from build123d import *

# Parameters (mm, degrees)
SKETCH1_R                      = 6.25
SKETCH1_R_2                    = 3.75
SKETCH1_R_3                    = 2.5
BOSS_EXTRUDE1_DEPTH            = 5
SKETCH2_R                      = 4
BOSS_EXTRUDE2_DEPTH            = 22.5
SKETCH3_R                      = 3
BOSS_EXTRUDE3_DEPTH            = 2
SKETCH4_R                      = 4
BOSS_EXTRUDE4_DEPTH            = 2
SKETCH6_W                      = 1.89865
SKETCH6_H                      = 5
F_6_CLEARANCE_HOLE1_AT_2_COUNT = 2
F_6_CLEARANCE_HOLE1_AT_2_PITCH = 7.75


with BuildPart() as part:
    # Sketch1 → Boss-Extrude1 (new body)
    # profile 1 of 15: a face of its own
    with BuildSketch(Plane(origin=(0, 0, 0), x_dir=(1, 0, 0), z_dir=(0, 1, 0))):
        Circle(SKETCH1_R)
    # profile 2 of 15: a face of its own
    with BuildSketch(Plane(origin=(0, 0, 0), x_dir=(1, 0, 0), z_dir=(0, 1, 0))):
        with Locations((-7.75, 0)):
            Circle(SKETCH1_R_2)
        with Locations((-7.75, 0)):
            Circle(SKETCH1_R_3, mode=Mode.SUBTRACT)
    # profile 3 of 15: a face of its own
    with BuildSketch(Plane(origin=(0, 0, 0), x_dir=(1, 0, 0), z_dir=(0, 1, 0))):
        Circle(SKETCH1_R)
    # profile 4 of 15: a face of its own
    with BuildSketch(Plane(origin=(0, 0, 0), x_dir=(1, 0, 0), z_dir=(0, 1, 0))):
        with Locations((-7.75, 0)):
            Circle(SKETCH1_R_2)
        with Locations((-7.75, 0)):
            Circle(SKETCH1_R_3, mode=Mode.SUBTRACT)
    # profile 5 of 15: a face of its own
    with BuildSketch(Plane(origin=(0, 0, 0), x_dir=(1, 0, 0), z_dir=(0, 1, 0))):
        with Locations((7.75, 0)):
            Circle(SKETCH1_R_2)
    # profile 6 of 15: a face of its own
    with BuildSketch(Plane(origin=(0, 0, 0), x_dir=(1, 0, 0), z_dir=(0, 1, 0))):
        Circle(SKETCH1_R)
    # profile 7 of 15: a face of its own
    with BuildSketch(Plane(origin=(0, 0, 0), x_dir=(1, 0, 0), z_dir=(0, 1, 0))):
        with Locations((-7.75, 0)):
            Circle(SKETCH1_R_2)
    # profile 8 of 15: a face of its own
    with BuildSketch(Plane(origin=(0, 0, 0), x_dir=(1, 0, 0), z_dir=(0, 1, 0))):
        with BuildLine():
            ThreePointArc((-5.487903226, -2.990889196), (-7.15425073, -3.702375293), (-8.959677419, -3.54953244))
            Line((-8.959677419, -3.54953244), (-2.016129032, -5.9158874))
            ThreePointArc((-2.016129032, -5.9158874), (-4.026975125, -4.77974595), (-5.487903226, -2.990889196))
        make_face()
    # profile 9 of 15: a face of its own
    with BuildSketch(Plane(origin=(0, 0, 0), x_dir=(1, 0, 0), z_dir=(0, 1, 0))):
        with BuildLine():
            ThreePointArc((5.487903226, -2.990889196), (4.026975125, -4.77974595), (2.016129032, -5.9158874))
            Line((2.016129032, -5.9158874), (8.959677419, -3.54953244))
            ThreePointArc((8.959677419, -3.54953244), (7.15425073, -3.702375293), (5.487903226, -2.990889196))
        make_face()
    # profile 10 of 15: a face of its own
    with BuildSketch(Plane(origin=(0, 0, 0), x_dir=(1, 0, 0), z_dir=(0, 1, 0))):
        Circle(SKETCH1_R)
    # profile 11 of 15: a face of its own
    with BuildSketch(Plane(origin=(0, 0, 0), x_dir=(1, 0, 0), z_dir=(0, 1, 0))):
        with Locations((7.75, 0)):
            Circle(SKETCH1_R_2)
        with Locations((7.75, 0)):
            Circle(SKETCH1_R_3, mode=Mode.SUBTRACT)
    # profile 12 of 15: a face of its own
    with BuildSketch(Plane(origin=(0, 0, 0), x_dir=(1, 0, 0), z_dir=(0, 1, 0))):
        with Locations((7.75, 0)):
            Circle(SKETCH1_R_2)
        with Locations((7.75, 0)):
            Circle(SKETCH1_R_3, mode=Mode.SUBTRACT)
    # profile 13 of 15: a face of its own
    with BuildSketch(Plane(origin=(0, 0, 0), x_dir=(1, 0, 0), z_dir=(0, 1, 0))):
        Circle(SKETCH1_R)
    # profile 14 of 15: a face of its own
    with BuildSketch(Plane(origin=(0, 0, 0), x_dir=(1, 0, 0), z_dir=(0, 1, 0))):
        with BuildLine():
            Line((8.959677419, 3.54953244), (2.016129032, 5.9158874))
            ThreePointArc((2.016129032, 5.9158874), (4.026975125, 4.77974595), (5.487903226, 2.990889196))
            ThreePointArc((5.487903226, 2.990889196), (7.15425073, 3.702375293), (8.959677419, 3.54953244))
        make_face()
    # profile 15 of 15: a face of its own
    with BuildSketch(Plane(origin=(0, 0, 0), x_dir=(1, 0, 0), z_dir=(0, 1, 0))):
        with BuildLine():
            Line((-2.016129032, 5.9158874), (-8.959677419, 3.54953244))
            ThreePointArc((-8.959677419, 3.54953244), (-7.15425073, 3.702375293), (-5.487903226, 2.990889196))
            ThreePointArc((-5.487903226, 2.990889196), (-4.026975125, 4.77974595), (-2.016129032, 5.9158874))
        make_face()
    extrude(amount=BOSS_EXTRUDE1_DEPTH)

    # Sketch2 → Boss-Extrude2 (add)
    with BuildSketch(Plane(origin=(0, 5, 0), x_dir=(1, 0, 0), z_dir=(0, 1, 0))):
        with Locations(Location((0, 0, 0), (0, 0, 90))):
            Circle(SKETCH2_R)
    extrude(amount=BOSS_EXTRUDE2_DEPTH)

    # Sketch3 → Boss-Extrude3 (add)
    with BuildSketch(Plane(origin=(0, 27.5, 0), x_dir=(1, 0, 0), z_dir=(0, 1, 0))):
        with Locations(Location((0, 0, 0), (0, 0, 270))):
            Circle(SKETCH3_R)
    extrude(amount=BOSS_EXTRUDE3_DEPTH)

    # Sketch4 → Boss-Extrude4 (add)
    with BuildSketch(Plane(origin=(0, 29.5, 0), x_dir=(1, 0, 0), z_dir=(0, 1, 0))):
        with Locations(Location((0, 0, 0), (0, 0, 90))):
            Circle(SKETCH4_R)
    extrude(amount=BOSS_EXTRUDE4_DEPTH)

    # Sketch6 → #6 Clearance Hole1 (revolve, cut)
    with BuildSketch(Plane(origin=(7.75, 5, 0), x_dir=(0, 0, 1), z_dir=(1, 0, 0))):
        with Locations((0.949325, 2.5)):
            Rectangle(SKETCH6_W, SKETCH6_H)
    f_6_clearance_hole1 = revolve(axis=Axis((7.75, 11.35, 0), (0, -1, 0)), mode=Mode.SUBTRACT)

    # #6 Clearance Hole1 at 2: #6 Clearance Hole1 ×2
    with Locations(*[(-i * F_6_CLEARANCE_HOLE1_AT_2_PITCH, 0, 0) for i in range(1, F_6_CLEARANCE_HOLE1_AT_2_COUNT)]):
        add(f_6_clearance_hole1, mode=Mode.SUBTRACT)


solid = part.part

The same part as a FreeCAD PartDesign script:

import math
import FreeCAD as App
import Part
import Sketcher

V = App.Vector


def add_polygon(sketch, points):
    """Adds a closed chain of lines whose ends are joined by coincident constraints."""
    first, n = sketch.GeometryCount, len(points)
    for a, b in zip(points, points[1:] + points[:1]):
        sketch.addGeometry(Part.LineSegment(App.Vector(*a, 0), App.Vector(*b, 0)), False)
    for i in range(n):
        sketch.addConstraint(Sketcher.Constraint("Coincident", first + i, 2, first + (i + 1) % n, 1))

doc = App.newDocument("Part")
params = doc.addObject("Spreadsheet::Sheet", "Params")
for row, (alias, value) in enumerate([
    ("sketch1_radius", "6.25 mm"),
    ("sketch1_radius2", "3.75 mm"),
    ("pad1_length", "5 mm"),
    ("sketch2_diameter", "8 mm"),
    ("pad2_length", "22.5 mm"),
    ("sketch3_diameter", "6 mm"),
    ("pad3_length", "2 mm"),
    ("sketch4_diameter", "8 mm"),
    ("pad4_length", "2 mm"),
    ("sketch5_width", "5 mm"),
    ("groove_angle", "360 deg"),
    ("linearpattern_pitch", "7.75 mm"),
], start=1):
    params.set(f"A{row}", alias)
    params.set(f"B{row}", "=" + value)
    params.setAlias(f"B{row}", alias)

body = doc.addObject("PartDesign::Body", "Body")

# Sketch on XZ plane
sketch1 = body.newObject("Sketcher::SketchObject", "Sketch")
sketch1.AttachmentSupport = (doc.getObject("XZ_Plane"), [""])
sketch1.MapMode = "FlatFace"
sketch1.addGeometry([
    Part.ArcOfCircle(Part.Circle(V(0, 0, 0), V(0, 0, 1), 6.2), math.radians(71), math.radians(109)),  # 0
    Part.LineSegment(V(2, 5.9, 0), V(9, 3.5, 0)),  # 1
    Part.ArcOfCircle(Part.Circle(V(7.8, 0, 0), V(0, 0, 1), 3.8), math.radians(-71), math.radians(71)),  # 2
    Part.LineSegment(V(9, -3.5, 0), V(2, -5.9, 0)),  # 3
    Part.ArcOfCircle(Part.Circle(V(0, 0, 0), V(0, 0, 1), 6.2), math.radians(-109), math.radians(-71)),  # 4
    Part.LineSegment(V(-2, -5.9, 0), V(-9, -3.5, 0)),  # 5
    Part.ArcOfCircle(Part.Circle(V(-7.8, 0, 0), V(0, 0, 1), 3.8), math.radians(109), math.radians(251)),  # 6
    Part.LineSegment(V(-9, 3.5, 0), V(-2, 5.9, 0)),  # 7
], False)
sketch1.addConstraint([
    Sketcher.Constraint("Tangent", 0, 1, 1, 1),
    Sketcher.Constraint("Tangent", 1, 2, 2, 2),
    Sketcher.Constraint("Tangent", 2, 1, 3, 1),
    Sketcher.Constraint("Tangent", 3, 2, 4, 2),
    Sketcher.Constraint("Tangent", 4, 1, 5, 1),
    Sketcher.Constraint("Tangent", 5, 2, 6, 2),
    Sketcher.Constraint("Tangent", 6, 1, 7, 1),
    Sketcher.Constraint("Tangent", 7, 2, 0, 2),
    Sketcher.Constraint("Coincident", 0, 3, -1, 1),
    Sketcher.Constraint("Coincident", 4, 3, -1, 1),
    Sketcher.Constraint("Equal", 0, 4),
    Sketcher.Constraint("Equal", 2, 6),
    Sketcher.Constraint("Symmetric", 2, 3, 6, 3, -1, 1),
    Sketcher.Constraint("PointOnObject", 2, 3, -1),
    Sketcher.Constraint("Radius", 0, 6.25),
    Sketcher.Constraint("Radius", 2, 3.75),
    Sketcher.Constraint("DistanceX", 6, 3, 2, 3, 15.5),
])
sketch1.setExpression("Constraints[14]", "Params.sketch1_radius")
sketch1.setExpression("Constraints[15]", "Params.sketch1_radius2")
pad1 = body.newObject("PartDesign::Pad", "Pad")
pad1.Profile = sketch1
pad1.setExpression("Length", "Params.pad1_length")
pad1.Reversed = True

# Sketch on XZ plane
sketch2 = body.newObject("Sketcher::SketchObject", "Sketch001")
sketch2.AttachmentSupport = (doc.getObject("XZ_Plane"), [""])
sketch2.MapMode = "FlatFace"
sketch2.AttachmentOffset = App.Placement(V(0, 0, -5), App.Rotation())
sketch2.addGeometry(Part.Circle(V(0, 0, 0), V(0, 0, 1), 4), False)
sketch2.addConstraint([
    Sketcher.Constraint("Coincident", 0, 3, -1, 1),
    Sketcher.Constraint("Diameter", 0, 8.0),
])
sketch2.setExpression("Constraints[1]", "Params.sketch2_diameter")
pad2 = body.newObject("PartDesign::Pad", "Pad001")
pad2.Profile = sketch2
pad2.setExpression("Length", "Params.pad2_length")
pad2.Reversed = True

# Sketch on XZ plane
sketch3 = body.newObject("Sketcher::SketchObject", "Sketch002")
sketch3.AttachmentSupport = (doc.getObject("XZ_Plane"), [""])
sketch3.MapMode = "FlatFace"
sketch3.AttachmentOffset = App.Placement(V(0, 0, -27.5), App.Rotation())
sketch3.addGeometry(Part.Circle(V(0, 0, 0), V(0, 0, 1), 3), False)
sketch3.addConstraint([
    Sketcher.Constraint("Coincident", 0, 3, -1, 1),
    Sketcher.Constraint("Diameter", 0, 6.0),
])
sketch3.setExpression("Constraints[1]", "Params.sketch3_diameter")
pad3 = body.newObject("PartDesign::Pad", "Pad002")
pad3.Profile = sketch3
pad3.setExpression("Length", "Params.pad3_length")
pad3.Reversed = True

# Sketch on XZ plane
sketch4 = body.newObject("Sketcher::SketchObject", "Sketch003")
sketch4.AttachmentSupport = (doc.getObject("XZ_Plane"), [""])
sketch4.MapMode = "FlatFace"
sketch4.AttachmentOffset = App.Placement(V(0, 0, -29.5), App.Rotation())
sketch4.addGeometry(Part.Circle(V(0, 0, 0), V(0, 0, 1), 4), False)
sketch4.addConstraint([
    Sketcher.Constraint("Coincident", 0, 3, -1, 1),
    Sketcher.Constraint("Diameter", 0, 8.0),
])
sketch4.setExpression("Constraints[1]", "Params.sketch4_diameter")
pad4 = body.newObject("PartDesign::Pad", "Pad003")
pad4.Profile = sketch4
pad4.setExpression("Length", "Params.pad4_length")
pad4.Reversed = True

# Sketch on YZ plane
sketch5 = body.newObject("Sketcher::SketchObject", "Sketch004")
sketch5.AttachmentSupport = (doc.getObject("YZ_Plane"), [""])
sketch5.MapMode = "FlatFace"
sketch5.AttachmentOffset = App.Placement(V(0, 0, 7.75), App.Rotation())
add_polygon(sketch5, [(0, 0), (5, 0), (5, 1.9), (0, 1.9)])  # lines 0-3
sketch5.addConstraint([
    Sketcher.Constraint("Horizontal", 0),
    Sketcher.Constraint("Vertical", 1),
    Sketcher.Constraint("Horizontal", 2),
    Sketcher.Constraint("Vertical", 3),
    Sketcher.Constraint("Coincident", 3, 2, -1, 1),
    Sketcher.Constraint("DistanceX", 0, 1, 0, 2, 5.0),
    Sketcher.Constraint("DistanceY", 1, 1, 1, 2, 1.89865),
])
sketch5.setExpression("Constraints[9]", "Params.sketch5_width")
groove = body.newObject("PartDesign::Groove", "Groove")
groove.Profile = sketch5
groove.ReferenceAxis = (sketch5, ["H_Axis"])
groove.setExpression("Angle", "Params.groove_angle")
doc.recompute()

linearpattern = body.newObject("PartDesign::LinearPattern", "LinearPattern")
linearpattern.Originals = [groove]
linearpattern.Direction = (doc.getObject("X_Axis"), [""])
linearpattern.Mode = "offset"
linearpattern.setExpression("Offset", "Params.linearpattern_pitch")
linearpattern.Occurrences = 2
linearpattern.Reversed = True
body.Tip = linearpattern

doc.recompute()
